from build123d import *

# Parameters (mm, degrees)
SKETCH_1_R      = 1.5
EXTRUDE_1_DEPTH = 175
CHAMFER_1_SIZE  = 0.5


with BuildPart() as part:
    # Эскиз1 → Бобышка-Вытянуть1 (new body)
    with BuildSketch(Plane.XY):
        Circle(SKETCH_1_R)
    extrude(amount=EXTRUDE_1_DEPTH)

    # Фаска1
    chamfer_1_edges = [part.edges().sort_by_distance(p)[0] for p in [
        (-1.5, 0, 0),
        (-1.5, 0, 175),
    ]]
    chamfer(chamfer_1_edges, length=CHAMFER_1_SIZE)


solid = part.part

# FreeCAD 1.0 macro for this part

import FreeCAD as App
import Part
import Sketcher


def edges_at(feature, points):
    """Names of the edges that pass closest to the given points."""
    edges = feature.Shape.Edges
    near = lambda p: min(range(len(edges)), key=lambda i: edges[i].distToShape(Part.Vertex(*p))[0])
    return sorted({f"Edge{near(p) + 1}" for p in points})

doc = App.newDocument("Part")
body = doc.addObject("PartDesign::Body", "Body")

sketch1 = doc.addObject("Sketcher::SketchObject", "Sketch")
body.addObject(sketch1)
sketch1.AttachmentSupport = (doc.XY_Plane, [""])
sketch1.MapMode = "FlatFace"
sketch1.addGeometry(Part.Circle(App.Vector(0, 0, 0), App.Vector(0, 0, 1), 1.5), False)
sketch1.addConstraint(Sketcher.Constraint("Coincident", 0, 3, -1, 1))
sketch1.addConstraint(Sketcher.Constraint("Diameter", 0, 3.0))
pad1 = doc.addObject("PartDesign::Pad", "Pad")
body.addObject(pad1)
pad1.Profile = sketch1
pad1.Length = 175
doc.recompute()

chamfer = doc.addObject("PartDesign::Chamfer", "Chamfer")
body.addObject(chamfer)
chamfer.Base = (pad1, edges_at(pad1, [(-1.5, 0, 0), (-1.5, 0, 175)]))
chamfer.Size = 0.5

doc.recompute()
